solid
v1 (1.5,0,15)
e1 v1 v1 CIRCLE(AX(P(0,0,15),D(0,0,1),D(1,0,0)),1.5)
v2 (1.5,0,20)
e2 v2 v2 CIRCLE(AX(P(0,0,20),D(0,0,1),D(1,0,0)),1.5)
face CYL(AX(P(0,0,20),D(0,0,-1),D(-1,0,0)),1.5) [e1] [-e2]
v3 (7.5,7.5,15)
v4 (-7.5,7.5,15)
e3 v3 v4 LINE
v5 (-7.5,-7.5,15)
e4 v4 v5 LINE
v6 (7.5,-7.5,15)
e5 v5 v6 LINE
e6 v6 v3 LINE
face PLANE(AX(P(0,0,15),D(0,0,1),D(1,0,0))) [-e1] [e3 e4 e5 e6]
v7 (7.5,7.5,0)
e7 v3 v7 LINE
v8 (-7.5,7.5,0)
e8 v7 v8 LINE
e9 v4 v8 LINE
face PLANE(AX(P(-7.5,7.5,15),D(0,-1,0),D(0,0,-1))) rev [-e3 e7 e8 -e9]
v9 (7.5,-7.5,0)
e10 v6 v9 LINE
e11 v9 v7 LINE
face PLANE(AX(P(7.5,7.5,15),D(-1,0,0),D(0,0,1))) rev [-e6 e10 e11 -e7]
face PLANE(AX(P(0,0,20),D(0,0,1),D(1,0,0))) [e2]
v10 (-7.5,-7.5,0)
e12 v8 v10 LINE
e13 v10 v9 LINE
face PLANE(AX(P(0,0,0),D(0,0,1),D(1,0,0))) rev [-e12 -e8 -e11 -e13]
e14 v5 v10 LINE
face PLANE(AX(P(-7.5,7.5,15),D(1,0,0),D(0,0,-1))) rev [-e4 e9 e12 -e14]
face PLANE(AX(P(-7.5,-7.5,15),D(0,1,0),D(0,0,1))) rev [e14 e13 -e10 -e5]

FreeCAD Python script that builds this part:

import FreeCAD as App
import Part
import Sketcher
from FreeCAD import Vector


def add_polygon(sketch, points):
    """Adds a closed chain of lines whose ends are joined by coincident constraints."""
    first, n = sketch.GeometryCount, len(points)
    for a, b in zip(points, points[1:] + points[:1]):
        sketch.addGeometry(Part.LineSegment(App.Vector(*a, 0), App.Vector(*b, 0)), False)
    for i in range(n):
        sketch.addConstraint(Sketcher.Constraint("Coincident", first + i, 2, first + (i + 1) % n, 1))

doc = App.newDocument("Part")
body = doc.addObject("PartDesign::Body", "Body")

# Sketch on XY plane
sketch1 = doc.addObject("Sketcher::SketchObject", "Sketch")
body.addObject(sketch1)
sketch1.AttachmentSupport = (doc.XY_Plane, [""])
sketch1.MapMode = "FlatFace"
add_polygon(sketch1, [(-7.5, 7.5), (-7.5, -7.5), (7.5, -7.5), (7.5, 7.5)])  # lines 0-3
sketch1.addConstraint(Sketcher.Constraint("Vertical", 0))
sketch1.addConstraint(Sketcher.Constraint("Horizontal", 1))
sketch1.addConstraint(Sketcher.Constraint("Vertical", 2))
sketch1.addConstraint(Sketcher.Constraint("Horizontal", 3))
sketch1.addConstraint(Sketcher.Constraint("Symmetric", 0, 2, 2, 2, -1, 1))
sketch1.addConstraint(Sketcher.Constraint("Equal", 3, 0))
sketch1.addConstraint(Sketcher.Constraint("DistanceX", 1, 1, 1, 2, 15.0))
pad1 = doc.addObject("PartDesign::Pad", "Pad")
body.addObject(pad1)
pad1.Profile = sketch1
pad1.Length = 15

# Sketch on XY plane
sketch2 = doc.addObject("Sketcher::SketchObject", "Sketch001")
body.addObject(sketch2)
sketch2.AttachmentSupport = (doc.XY_Plane, [""])
sketch2.MapMode = "FlatFace"
sketch2.AttachmentOffset = App.Placement(Vector(0, 0, 15), App.Rotation())
sketch2.addGeometry(Part.Circle(Vector(0, 0, 0), Vector(0, 0, 1), 1.5), False)
sketch2.addConstraint(Sketcher.Constraint("Coincident", 0, 3, -1, 1))
sketch2.addConstraint(Sketcher.Constraint("Diameter", 0, 3.0))
pad2 = doc.addObject("PartDesign::Pad", "Pad001")
body.addObject(pad2)
pad2.Profile = sketch2
pad2.Length = 5

doc.recompute()
